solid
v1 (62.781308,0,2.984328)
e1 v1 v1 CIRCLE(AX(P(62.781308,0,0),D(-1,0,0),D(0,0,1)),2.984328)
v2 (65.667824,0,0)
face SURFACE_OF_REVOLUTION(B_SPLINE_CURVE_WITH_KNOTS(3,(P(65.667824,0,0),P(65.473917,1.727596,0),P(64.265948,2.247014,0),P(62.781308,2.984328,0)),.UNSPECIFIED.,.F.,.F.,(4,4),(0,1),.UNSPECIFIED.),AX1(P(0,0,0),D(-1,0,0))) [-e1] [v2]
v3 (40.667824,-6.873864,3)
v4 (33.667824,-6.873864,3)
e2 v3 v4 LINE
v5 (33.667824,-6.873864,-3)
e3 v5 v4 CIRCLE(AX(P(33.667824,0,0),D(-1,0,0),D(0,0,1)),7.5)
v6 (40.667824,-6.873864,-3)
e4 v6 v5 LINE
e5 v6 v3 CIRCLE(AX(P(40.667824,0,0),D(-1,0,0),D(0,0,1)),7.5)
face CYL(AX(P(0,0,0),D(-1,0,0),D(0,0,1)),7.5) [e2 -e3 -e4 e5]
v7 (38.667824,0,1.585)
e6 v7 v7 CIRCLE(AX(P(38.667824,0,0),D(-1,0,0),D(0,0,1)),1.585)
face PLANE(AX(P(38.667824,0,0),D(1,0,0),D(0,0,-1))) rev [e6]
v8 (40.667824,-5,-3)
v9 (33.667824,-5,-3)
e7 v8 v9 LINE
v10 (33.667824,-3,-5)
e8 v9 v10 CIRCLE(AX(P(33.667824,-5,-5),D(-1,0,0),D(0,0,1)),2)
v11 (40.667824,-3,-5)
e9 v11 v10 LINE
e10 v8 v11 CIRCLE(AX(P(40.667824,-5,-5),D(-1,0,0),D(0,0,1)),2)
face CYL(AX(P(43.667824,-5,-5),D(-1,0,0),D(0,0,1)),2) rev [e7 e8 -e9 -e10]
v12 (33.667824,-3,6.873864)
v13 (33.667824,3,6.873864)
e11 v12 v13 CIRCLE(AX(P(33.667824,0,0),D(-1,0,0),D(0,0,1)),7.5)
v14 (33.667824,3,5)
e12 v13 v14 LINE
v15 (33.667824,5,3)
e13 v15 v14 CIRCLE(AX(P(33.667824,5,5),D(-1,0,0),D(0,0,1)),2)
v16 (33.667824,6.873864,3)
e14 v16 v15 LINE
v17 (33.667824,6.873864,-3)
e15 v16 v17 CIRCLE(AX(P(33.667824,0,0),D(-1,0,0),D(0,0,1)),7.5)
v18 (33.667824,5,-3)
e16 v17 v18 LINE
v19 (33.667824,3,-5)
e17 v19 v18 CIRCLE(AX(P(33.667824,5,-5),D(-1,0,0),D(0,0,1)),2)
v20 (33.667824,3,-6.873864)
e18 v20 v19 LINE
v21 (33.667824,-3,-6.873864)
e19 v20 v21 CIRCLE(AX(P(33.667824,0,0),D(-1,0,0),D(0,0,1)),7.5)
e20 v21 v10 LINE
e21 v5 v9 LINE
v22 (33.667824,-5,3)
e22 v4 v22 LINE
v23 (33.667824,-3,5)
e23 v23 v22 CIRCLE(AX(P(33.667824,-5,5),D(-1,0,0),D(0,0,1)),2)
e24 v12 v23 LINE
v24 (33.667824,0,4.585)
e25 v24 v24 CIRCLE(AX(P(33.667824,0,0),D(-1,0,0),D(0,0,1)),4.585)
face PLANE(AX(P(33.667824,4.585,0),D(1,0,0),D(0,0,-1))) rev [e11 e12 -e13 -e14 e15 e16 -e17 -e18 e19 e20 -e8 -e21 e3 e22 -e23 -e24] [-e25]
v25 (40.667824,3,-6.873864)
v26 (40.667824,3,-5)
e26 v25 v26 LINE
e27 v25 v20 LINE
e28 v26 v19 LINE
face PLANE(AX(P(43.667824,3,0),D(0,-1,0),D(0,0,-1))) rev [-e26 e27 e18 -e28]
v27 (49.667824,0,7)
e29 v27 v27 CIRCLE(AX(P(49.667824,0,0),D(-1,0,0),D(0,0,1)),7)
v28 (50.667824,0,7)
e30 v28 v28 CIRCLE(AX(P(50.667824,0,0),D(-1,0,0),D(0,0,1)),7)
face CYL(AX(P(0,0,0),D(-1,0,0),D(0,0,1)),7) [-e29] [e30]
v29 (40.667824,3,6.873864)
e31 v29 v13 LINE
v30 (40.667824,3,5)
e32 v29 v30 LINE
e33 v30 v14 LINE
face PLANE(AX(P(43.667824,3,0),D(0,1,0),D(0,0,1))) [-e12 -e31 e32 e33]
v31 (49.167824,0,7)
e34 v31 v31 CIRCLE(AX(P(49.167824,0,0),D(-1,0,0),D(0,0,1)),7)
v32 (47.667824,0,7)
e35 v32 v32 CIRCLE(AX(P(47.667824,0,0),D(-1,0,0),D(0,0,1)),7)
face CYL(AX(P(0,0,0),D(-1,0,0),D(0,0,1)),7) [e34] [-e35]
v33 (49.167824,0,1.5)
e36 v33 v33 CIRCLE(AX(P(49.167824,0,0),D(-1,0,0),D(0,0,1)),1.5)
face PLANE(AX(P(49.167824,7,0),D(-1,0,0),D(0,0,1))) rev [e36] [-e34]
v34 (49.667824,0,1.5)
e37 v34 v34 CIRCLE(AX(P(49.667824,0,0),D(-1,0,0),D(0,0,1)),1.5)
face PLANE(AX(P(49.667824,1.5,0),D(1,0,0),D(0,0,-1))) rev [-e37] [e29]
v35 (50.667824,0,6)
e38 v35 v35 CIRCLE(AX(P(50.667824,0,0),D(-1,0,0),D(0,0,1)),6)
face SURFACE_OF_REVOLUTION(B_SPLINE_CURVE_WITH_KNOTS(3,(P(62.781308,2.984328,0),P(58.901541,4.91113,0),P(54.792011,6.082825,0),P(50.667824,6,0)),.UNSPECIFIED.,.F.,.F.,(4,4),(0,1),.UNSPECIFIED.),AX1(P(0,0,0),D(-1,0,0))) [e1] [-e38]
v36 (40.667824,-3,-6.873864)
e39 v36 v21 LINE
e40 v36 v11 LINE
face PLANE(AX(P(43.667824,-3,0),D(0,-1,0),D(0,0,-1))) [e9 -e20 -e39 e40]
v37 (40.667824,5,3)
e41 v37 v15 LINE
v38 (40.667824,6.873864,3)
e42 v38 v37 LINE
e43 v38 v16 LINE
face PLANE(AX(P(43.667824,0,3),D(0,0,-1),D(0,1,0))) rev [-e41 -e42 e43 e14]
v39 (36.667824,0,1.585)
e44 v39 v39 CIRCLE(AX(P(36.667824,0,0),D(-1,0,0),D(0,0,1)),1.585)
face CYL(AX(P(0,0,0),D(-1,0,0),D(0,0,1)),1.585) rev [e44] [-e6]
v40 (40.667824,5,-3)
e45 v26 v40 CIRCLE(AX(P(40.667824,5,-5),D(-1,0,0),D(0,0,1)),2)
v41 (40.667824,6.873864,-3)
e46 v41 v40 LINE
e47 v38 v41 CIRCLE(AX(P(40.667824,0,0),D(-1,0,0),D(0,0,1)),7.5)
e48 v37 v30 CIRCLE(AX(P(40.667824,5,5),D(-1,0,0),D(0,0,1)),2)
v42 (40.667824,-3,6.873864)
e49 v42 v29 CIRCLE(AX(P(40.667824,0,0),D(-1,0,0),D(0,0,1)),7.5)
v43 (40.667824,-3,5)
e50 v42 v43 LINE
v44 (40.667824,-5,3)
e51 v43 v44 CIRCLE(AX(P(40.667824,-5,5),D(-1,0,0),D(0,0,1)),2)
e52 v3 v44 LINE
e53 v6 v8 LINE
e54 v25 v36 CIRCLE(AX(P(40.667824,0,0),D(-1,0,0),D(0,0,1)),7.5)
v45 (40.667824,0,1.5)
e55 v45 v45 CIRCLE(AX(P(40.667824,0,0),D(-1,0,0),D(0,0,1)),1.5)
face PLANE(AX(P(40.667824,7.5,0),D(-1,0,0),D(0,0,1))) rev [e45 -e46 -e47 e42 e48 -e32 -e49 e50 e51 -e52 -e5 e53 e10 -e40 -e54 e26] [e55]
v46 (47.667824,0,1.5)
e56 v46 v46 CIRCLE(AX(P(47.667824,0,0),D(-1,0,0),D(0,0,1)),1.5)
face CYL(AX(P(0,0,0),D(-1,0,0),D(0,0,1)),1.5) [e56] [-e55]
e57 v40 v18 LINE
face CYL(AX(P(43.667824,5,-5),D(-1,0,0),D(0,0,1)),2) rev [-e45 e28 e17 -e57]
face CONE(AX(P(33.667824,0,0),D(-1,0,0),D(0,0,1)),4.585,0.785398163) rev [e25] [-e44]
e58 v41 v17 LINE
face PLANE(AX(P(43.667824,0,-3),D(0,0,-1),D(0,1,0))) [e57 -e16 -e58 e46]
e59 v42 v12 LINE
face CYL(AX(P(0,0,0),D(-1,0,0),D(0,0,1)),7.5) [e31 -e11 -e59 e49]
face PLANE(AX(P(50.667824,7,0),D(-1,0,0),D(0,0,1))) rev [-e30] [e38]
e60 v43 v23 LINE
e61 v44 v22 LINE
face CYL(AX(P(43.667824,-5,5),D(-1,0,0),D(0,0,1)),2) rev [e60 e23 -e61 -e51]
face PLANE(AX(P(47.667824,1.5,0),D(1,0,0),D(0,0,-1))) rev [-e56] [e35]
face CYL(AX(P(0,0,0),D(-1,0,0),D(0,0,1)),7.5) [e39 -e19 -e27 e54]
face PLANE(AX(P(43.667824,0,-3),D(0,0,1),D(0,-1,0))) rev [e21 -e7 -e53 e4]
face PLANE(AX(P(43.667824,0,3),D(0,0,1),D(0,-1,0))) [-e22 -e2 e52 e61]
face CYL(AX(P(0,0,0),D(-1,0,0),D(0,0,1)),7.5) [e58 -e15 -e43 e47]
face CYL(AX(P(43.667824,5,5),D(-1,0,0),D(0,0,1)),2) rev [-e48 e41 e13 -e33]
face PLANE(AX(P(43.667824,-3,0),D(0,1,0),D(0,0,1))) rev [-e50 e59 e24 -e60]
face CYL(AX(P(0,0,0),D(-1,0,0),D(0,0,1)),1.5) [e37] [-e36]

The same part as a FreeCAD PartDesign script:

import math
import FreeCAD as App
import Part
import Sketcher
Q = App.Units.Quantity

doc = App.newDocument("Part")
body = doc.addObject("PartDesign::Body", "Body")

# Sketch on XY plane
sketch1 = body.newObject("Sketcher::SketchObject", "Sketch")
sketch1.AttachmentSupport = (doc.getObject("XY_Plane"), [""])
sketch1.MapMode = "FlatFace"
sketch1.addGeometry(Part.LineSegment(App.Vector(38.667824, 1.585, 0), App.Vector(38.667824, 0, 0)), False)
sketch1.addGeometry(Part.LineSegment(App.Vector(38.667824, 0, 0), App.Vector(65.667824, 0, 0)), False)
sketch1.addGeometry(Part.BSplineCurve([App.Vector(62.781308, 2.984328, 0), App.Vector(64.265948, 2.247014, 0), App.Vector(65.473917, 1.727596, 0), App.Vector(65.667824, 0, 0)], [4, 4], [0, 1], False, 3, [1, 1, 1, 1], False), False)
sketch1.addGeometry(Part.BSplineCurve([App.Vector(50.667824, 6, 0), App.Vector(54.792011, 6.082825, 0), App.Vector(58.901541, 4.91113, 0), App.Vector(62.781308, 2.984328, 0)], [4, 4], [0, 1], False, 3, [1, 1, 1, 1], False), False)
sketch1.addGeometry(Part.LineSegment(App.Vector(50.667824, 6, 0), App.Vector(50.667824, 7, 0)), False)
sketch1.addGeometry(Part.LineSegment(App.Vector(50.667824, 7, 0), App.Vector(49.667824, 7, 0)), False)
sketch1.addGeometry(Part.LineSegment(App.Vector(49.667824, 7, 0), App.Vector(49.667824, 1.5, 0)), False)
sketch1.addGeometry(Part.LineSegment(App.Vector(49.667824, 1.5, 0), App.Vector(49.167824, 1.5, 0)), False)
sketch1.addGeometry(Part.LineSegment(App.Vector(49.167824, 1.5, 0), App.Vector(49.167824, 7, 0)), False)
sketch1.addGeometry(Part.LineSegment(App.Vector(49.167824, 7, 0), App.Vector(47.667824, 7, 0)), False)
sketch1.addGeometry(Part.LineSegment(App.Vector(47.667824, 7, 0), App.Vector(47.667824, 1.5, 0)), False)
sketch1.addGeometry(Part.LineSegment(App.Vector(47.667824, 1.5, 0), App.Vector(40.667824, 1.5, 0)), False)
sketch1.addGeometry(Part.LineSegment(App.Vector(40.667824, 1.5, 0), App.Vector(40.667824, 7.5, 0)), False)
sketch1.addGeometry(Part.LineSegment(App.Vector(40.667824, 7.5, 0), App.Vector(33.667824, 7.5, 0)), False)
sketch1.addGeometry(Part.LineSegment(App.Vector(33.667824, 7.5, 0), App.Vector(33.667824, 4.585, 0)), False)
sketch1.addGeometry(Part.LineSegment(App.Vector(33.667824, 4.585, 0), App.Vector(36.667824, 1.585, 0)), False)
sketch1.addGeometry(Part.LineSegment(App.Vector(36.667824, 1.585, 0), App.Vector(38.667824, 1.585, 0)), False)
sketch1.addConstraint(Sketcher.Constraint("Block", 2))
sketch1.addConstraint(Sketcher.Constraint("Block", 3))
sketch1.addConstraint(Sketcher.Constraint("Coincident", 0, 2, 1, 1))
sketch1.addConstraint(Sketcher.Constraint("Coincident", 1, 2, 2, 2))
sketch1.addConstraint(Sketcher.Constraint("Coincident", 3, 1, 4, 1))
sketch1.addConstraint(Sketcher.Constraint("Coincident", 4, 2, 5, 1))
sketch1.addConstraint(Sketcher.Constraint("Coincident", 5, 2, 6, 1))
sketch1.addConstraint(Sketcher.Constraint("Coincident", 6, 2, 7, 1))
sketch1.addConstraint(Sketcher.Constraint("Coincident", 7, 2, 8, 1))
sketch1.addConstraint(Sketcher.Constraint("Coincident", 8, 2, 9, 1))
sketch1.addConstraint(Sketcher.Constraint("Coincident", 9, 2, 10, 1))
sketch1.addConstraint(Sketcher.Constraint("Coincident", 10, 2, 11, 1))
sketch1.addConstraint(Sketcher.Constraint("Coincident", 11, 2, 12, 1))
sketch1.addConstraint(Sketcher.Constraint("Coincident", 12, 2, 13, 1))
sketch1.addConstraint(Sketcher.Constraint("Coincident", 13, 2, 14, 1))
sketch1.addConstraint(Sketcher.Constraint("Coincident", 14, 2, 15, 1))
sketch1.addConstraint(Sketcher.Constraint("Coincident", 15, 2, 16, 1))
sketch1.addConstraint(Sketcher.Constraint("Coincident", 16, 2, 0, 1))
sketch1.addConstraint(Sketcher.Constraint("Vertical", 0))
sketch1.addConstraint(Sketcher.Constraint("Horizontal", 1))
sketch1.addConstraint(Sketcher.Constraint("Vertical", 4))
sketch1.addConstraint(Sketcher.Constraint("Horizontal", 5))
sketch1.addConstraint(Sketcher.Constraint("Vertical", 6))
sketch1.addConstraint(Sketcher.Constraint("Horizontal", 7))
sketch1.addConstraint(Sketcher.Constraint("Vertical", 8))
sketch1.addConstraint(Sketcher.Constraint("Horizontal", 9))
sketch1.addConstraint(Sketcher.Constraint("Vertical", 10))
sketch1.addConstraint(Sketcher.Constraint("Horizontal", 11))
sketch1.addConstraint(Sketcher.Constraint("Vertical", 12))
sketch1.addConstraint(Sketcher.Constraint("Horizontal", 13))
sketch1.addConstraint(Sketcher.Constraint("Vertical", 14))
sketch1.addConstraint(Sketcher.Constraint("Horizontal", 16))
sketch1.addConstraint(Sketcher.Constraint("Horizontal", 5, 2, 8, 2))
sketch1.addConstraint(Sketcher.Constraint("Horizontal", 7, 2, 10, 2))
sketch1.addConstraint(Sketcher.Constraint("Equal", 11, 13))
sketch1.addConstraint(Sketcher.Constraint("Equal", 5, 4))
sketch1.addConstraint(Sketcher.Constraint("DistanceX", 1, 1, 1, 2, 27.0))
sketch1.addConstraint(Sketcher.Constraint("DistanceX", 5, 2, 5, 1, 1.0))
sketch1.addConstraint(Sketcher.Constraint("DistanceX", 11, 2, 11, 1, 7.0))
sketch1.addConstraint(Sketcher.Constraint("DistanceX", 16, 1, 16, 2, 2.0))
sketch1.addConstraint(Sketcher.Constraint("DistanceY", 12, 1, 12, 2, 6.0))
sketch1.addConstraint(Sketcher.Constraint("Angle", 15, Q("-45 deg")))
sketch1.addConstraint(Sketcher.Constraint("DistanceX", 7, 2, 7, 1, 0.5))
sketch1.addConstraint(Sketcher.Constraint("DistanceX", 9, 2, 9, 1, 1.5))
sketch1.addConstraint(Sketcher.Constraint("DistanceY", 6, 2, 6, 1, 5.5))
sketch1.addConstraint(Sketcher.Constraint("DistanceY", 0, 2, 0, 1, 1.585))
revolution = body.newObject("PartDesign::Revolution", "Revolution")
revolution.Profile = sketch1
revolution.ReferenceAxis = (sketch1, ["H_Axis"])
revolution.Angle = 360

# Sketch on YZ plane
sketch2 = body.newObject("Sketcher::SketchObject", "Sketch001")
sketch2.AttachmentSupport = (doc.getObject("YZ_Plane"), [""])
sketch2.MapMode = "FlatFace"
sketch2.AttachmentOffset = App.Placement(App.Vector(0, 0, 43.667824), App.Rotation())
sketch2.addGeometry(Part.LineSegment(App.Vector(5, -3, 0), App.Vector(6.873864, -3, 0)), False)
sketch2.addGeometry(Part.ArcOfCircle(Part.Circle(App.Vector(0, 0, 0), App.Vector(0, 0, 1), 7.5), math.radians(-66.421822), math.radians(-23.578178)), False)
sketch2.addGeometry(Part.LineSegment(App.Vector(3, -6.873864, 0), App.Vector(3, -5, 0)), False)
sketch2.addGeometry(Part.ArcOfCircle(Part.Circle(App.Vector(5, -5, 0), App.Vector(0, 0, 1), 2), math.radians(90), math.radians(180)), False)
sketch2.addGeometry(Part.ArcOfCircle(Part.Circle(App.Vector(0, 0, 0), App.Vector(0, 0, 1), 7.5), math.radians(23.578178), math.radians(66.421822)), False)
sketch2.addGeometry(Part.LineSegment(App.Vector(6.873864, 3, 0), App.Vector(5, 3, 0)), False)
sketch2.addGeometry(Part.ArcOfCircle(Part.Circle(App.Vector(5, 5, 0), App.Vector(0, 0, 1), 2), math.radians(-180), math.radians(-90)), False)
sketch2.addGeometry(Part.LineSegment(App.Vector(3, 5, 0), App.Vector(3, 6.873864, 0)), False)
sketch2.addGeometry(Part.ArcOfCircle(Part.Circle(App.Vector(0, 0, 0), App.Vector(0, 0, 1), 7.5), math.radians(113.578178), math.radians(156.421822)), False)
sketch2.addGeometry(Part.LineSegment(App.Vector(-3, 6.873864, 0), App.Vector(-3, 5, 0)), False)
sketch2.addGeometry(Part.ArcOfCircle(Part.Circle(App.Vector(-5, 5, 0), App.Vector(0, 0, 1), 2), math.radians(-90), math.radians(0)), False)
sketch2.addGeometry(Part.LineSegment(App.Vector(-5, 3, 0), App.Vector(-6.873864, 3, 0)), False)
sketch2.addGeometry(Part.LineSegment(App.Vector(-3, -5, 0), App.Vector(-3, -6.873864, 0)), False)
sketch2.addGeometry(Part.ArcOfCircle(Part.Circle(App.Vector(0, 0, 0), App.Vector(0, 0, 1), 7.5), math.radians(-156.421822), math.radians(-113.578178)), False)
sketch2.addGeometry(Part.LineSegment(App.Vector(-6.873864, -3, 0), App.Vector(-5, -3, 0)), False)
sketch2.addGeometry(Part.ArcOfCircle(Part.Circle(App.Vector(-5, -5, 0), App.Vector(0, 0, 1), 2), math.radians(0), math.radians(90)), False)
sketch2.addConstraint(Sketcher.Constraint("Coincident", 0, 2, 1, 2))
sketch2.addConstraint(Sketcher.Constraint("Coincident", 1, 1, 2, 1))
sketch2.addConstraint(Sketcher.Constraint("Tangent", 2, 2, 3, 2))
sketch2.addConstraint(Sketcher.Constraint("Tangent", 3, 1, 0, 1))
sketch2.addConstraint(Sketcher.Constraint("Coincident", 4, 1, 5, 1))
sketch2.addConstraint(Sketcher.Constraint("Tangent", 5, 2, 6, 2))
sketch2.addConstraint(Sketcher.Constraint("Tangent", 6, 1, 7, 1))
sketch2.addConstraint(Sketcher.Constraint("Coincident", 7, 2, 4, 2))
sketch2.addConstraint(Sketcher.Constraint("Coincident", 8, 1, 9, 1))
sketch2.addConstraint(Sketcher.Constraint("Tangent", 9, 2, 10, 2))
sketch2.addConstraint(Sketcher.Constraint("Tangent", 10, 1, 11, 1))
sketch2.addConstraint(Sketcher.Constraint("Coincident", 11, 2, 8, 2))
sketch2.addConstraint(Sketcher.Constraint("Coincident", 12, 2, 13, 2))
sketch2.addConstraint(Sketcher.Constraint("Coincident", 13, 1, 14, 1))
sketch2.addConstraint(Sketcher.Constraint("Tangent", 14, 2, 15, 2))
sketch2.addConstraint(Sketcher.Constraint("Tangent", 15, 1, 12, 1))
sketch2.addConstraint(Sketcher.Constraint("Horizontal", 0))
sketch2.addConstraint(Sketcher.Constraint("Vertical", 2))
sketch2.addConstraint(Sketcher.Constraint("Horizontal", 5))
sketch2.addConstraint(Sketcher.Constraint("Vertical", 7))
sketch2.addConstraint(Sketcher.Constraint("Vertical", 9))
sketch2.addConstraint(Sketcher.Constraint("Horizontal", 11))
sketch2.addConstraint(Sketcher.Constraint("Vertical", 12))
sketch2.addConstraint(Sketcher.Constraint("Horizontal", 14))
sketch2.addConstraint(Sketcher.Constraint("Coincident", 1, 3, -1, 1))
sketch2.addConstraint(Sketcher.Constraint("Coincident", 4, 3, -1, 1))
sketch2.addConstraint(Sketcher.Constraint("Coincident", 8, 3, -1, 1))
sketch2.addConstraint(Sketcher.Constraint("Coincident", 13, 3, -1, 1))
sketch2.addConstraint(Sketcher.Constraint("Equal", 1, 4))
sketch2.addConstraint(Sketcher.Constraint("Equal", 3, 6))
sketch2.addConstraint(Sketcher.Constraint("Equal", 4, 8))
sketch2.addConstraint(Sketcher.Constraint("Equal", 6, 10))
sketch2.addConstraint(Sketcher.Constraint("Equal", 8, 13))
sketch2.addConstraint(Sketcher.Constraint("Equal", 10, 15))
sketch2.addConstraint(Sketcher.Constraint("Symmetric", 3, 3, 10, 3, -1, 1))
sketch2.addConstraint(Sketcher.Constraint("Symmetric", 6, 3, 15, 3, -1, 1))
sketch2.addConstraint(Sketcher.Constraint("Symmetric", 6, 3, 10, 3, -2))
sketch2.addConstraint(Sketcher.Constraint("Equal", 14, 2))
sketch2.addConstraint(Sketcher.Constraint("Radius", 3, 2.0))
sketch2.addConstraint(Sketcher.Constraint("Radius", 1, 7.5))
sketch2.addConstraint(Sketcher.Constraint("DistanceX", -1, 1, 3, 3, 5.0))
pocket1 = body.newObject("PartDesign::Pocket", "Pocket")
pocket1.Profile = sketch2
pocket1.Length = 10

doc.recompute()
